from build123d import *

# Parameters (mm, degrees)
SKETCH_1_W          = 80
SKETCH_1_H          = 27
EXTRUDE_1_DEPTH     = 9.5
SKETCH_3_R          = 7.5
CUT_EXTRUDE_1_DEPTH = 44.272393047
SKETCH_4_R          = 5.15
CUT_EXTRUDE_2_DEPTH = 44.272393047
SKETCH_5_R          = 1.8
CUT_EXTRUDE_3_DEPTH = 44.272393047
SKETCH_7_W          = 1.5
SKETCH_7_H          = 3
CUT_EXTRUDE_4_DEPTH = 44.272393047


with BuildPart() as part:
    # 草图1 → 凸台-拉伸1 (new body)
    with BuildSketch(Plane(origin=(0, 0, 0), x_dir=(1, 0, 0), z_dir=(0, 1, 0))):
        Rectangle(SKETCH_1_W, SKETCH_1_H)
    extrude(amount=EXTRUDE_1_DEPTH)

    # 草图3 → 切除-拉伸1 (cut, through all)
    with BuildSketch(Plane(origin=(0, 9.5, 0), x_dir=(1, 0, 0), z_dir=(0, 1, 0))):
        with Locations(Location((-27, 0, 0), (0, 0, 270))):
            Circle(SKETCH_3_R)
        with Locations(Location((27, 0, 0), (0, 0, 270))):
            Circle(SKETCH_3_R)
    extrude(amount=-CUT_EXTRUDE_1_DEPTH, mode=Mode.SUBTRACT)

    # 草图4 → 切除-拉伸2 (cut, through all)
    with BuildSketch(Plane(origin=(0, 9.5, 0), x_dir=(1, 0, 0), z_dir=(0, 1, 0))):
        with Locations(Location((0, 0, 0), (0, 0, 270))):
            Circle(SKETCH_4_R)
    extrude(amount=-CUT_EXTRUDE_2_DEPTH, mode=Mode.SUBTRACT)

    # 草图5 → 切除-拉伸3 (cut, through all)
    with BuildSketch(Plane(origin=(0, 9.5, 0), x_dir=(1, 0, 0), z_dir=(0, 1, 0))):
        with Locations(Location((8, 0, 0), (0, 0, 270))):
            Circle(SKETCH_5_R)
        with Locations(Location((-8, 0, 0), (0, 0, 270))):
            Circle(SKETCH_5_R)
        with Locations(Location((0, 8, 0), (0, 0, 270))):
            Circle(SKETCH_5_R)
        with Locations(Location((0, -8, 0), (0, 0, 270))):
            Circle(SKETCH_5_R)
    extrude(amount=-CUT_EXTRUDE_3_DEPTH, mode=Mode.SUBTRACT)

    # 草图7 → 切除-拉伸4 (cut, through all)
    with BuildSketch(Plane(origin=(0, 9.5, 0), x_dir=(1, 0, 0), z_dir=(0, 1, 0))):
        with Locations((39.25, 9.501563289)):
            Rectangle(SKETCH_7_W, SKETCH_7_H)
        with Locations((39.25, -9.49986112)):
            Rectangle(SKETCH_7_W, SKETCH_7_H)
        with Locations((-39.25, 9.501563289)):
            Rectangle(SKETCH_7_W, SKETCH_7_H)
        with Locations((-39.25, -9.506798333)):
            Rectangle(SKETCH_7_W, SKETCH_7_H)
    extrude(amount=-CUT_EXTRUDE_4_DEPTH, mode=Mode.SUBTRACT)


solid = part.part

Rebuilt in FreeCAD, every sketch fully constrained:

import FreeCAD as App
import Part
import Sketcher
from FreeCAD import Vector

doc = App.newDocument("Part")
body = doc.addObject("PartDesign::Body", "Body")

sketch1 = body.newObject("Sketcher::SketchObject", "Sketch")
sketch1.AttachmentSupport = (doc.getObject("XZ_Plane"), [""])
sketch1.MapMode = "FlatFace"
sketch1.addGeometry([
    Part.LineSegment(Vector(-40, -14, 0), Vector(-40, 14, 0)),
    Part.LineSegment(Vector(-40, 14, 0), Vector(40, 14, 0)),
    Part.LineSegment(Vector(40, 14, 0), Vector(40, -14, 0)),
    Part.LineSegment(Vector(40, -14, 0), Vector(-40, -14, 0)),
], False)
sketch1.addConstraint([
    Sketcher.Constraint("Coincident", 0, 2, 1, 1),
    Sketcher.Constraint("Coincident", 1, 2, 2, 1),
    Sketcher.Constraint("Coincident", 2, 2, 3, 1),
    Sketcher.Constraint("Coincident", 3, 2, 0, 1),
    Sketcher.Constraint("Vertical", 0),
    Sketcher.Constraint("Horizontal", 1),
    Sketcher.Constraint("Vertical", 2),
    Sketcher.Constraint("Horizontal", 3),
    Sketcher.Constraint("Symmetric", 0, 2, 2, 2, -1, 1),
    Sketcher.Constraint("DistanceX", 1, 1, 1, 2, 80.0),
    Sketcher.Constraint("DistanceY", 0, 1, 0, 2, 27.0),
])
pad1 = body.newObject("PartDesign::Pad", "Pad")
pad1.Profile = sketch1
pad1.Length = 9.5
pad1.Reversed = True

sketch2 = body.newObject("Sketcher::SketchObject", "Sketch001")
sketch2.AttachmentSupport = (doc.getObject("XZ_Plane"), [""])
sketch2.MapMode = "FlatFace"
sketch2.AttachmentOffset = App.Placement(Vector(0, 0, -9.5), App.Rotation())
sketch2.addGeometry([
    Part.Circle(Vector(-27, 0, 0), Vector(0, 0, 1), 8),
    Part.Circle(Vector(27, 0, 0), Vector(0, 0, 1), 8),
], False)
sketch2.addConstraint([
    Sketcher.Constraint("Equal", 0, 1),
    Sketcher.Constraint("Symmetric", 0, 3, 1, 3, -1, 1),
    Sketcher.Constraint("PointOnObject", 0, 3, -1),
    Sketcher.Constraint("Diameter", 0, 15.0),
    Sketcher.Constraint("DistanceX", 0, 3, -1, 1, 27.0),
])
pocket1 = body.newObject("PartDesign::Pocket", "Pocket")
pocket1.Profile = sketch2
pocket1.Type = "ThroughAll"
pocket1.Reversed = True

sketch3 = body.newObject("Sketcher::SketchObject", "Sketch002")
sketch3.AttachmentSupport = (doc.getObject("XZ_Plane"), [""])
sketch3.MapMode = "FlatFace"
sketch3.AttachmentOffset = App.Placement(Vector(0, 0, -9.5), App.Rotation())
sketch3.addGeometry(Part.Circle(Vector(0, 0, 0), Vector(0, 0, 1), 5), False)
sketch3.addConstraint([
    Sketcher.Constraint("Coincident", 0, 3, -1, 1),
    Sketcher.Constraint("Diameter", 0, 10.3),
])
pocket2 = body.newObject("PartDesign::Pocket", "Pocket001")
pocket2.Profile = sketch3
pocket2.Type = "ThroughAll"
pocket2.Reversed = True

sketch4 = body.newObject("Sketcher::SketchObject", "Sketch003")
sketch4.AttachmentSupport = (doc.getObject("XZ_Plane"), [""])
sketch4.MapMode = "FlatFace"
sketch4.AttachmentOffset = App.Placement(Vector(0, 0, -9.5), App.Rotation())
sketch4.addGeometry([
    Part.Circle(Vector(8, 0, 0), Vector(0, 0, 1), 1.8),
    Part.Circle(Vector(-8, 0, 0), Vector(0, 0, 1), 1.8),
    Part.Circle(Vector(0, -8, 0), Vector(0, 0, 1), 1.8),
    Part.Circle(Vector(0, 8, 0), Vector(0, 0, 1), 1.8),
], False)
sketch4.addConstraint([
    Sketcher.Constraint("Equal", 0, 1),
    Sketcher.Constraint("Equal", 1, 2),
    Sketcher.Constraint("Equal", 2, 3),
    Sketcher.Constraint("Symmetric", 0, 3, 1, 3, -1, 1),
    Sketcher.Constraint("Symmetric", 2, 3, 3, 3, -1, 1),
    Sketcher.Constraint("PointOnObject", 0, 3, -1),
    Sketcher.Constraint("PointOnObject", 2, 3, -2),
    Sketcher.Constraint("Diameter", 0, 3.6),
    Sketcher.Constraint("DistanceX", -1, 1, 0, 3, 8.0),
    Sketcher.Constraint("DistanceY", 2, 3, -1, 1, 8.0),
])
pocket3 = body.newObject("PartDesign::Pocket", "Pocket002")
pocket3.Profile = sketch4
pocket3.Type = "ThroughAll"
pocket3.Reversed = True

sketch5 = body.newObject("Sketcher::SketchObject", "Sketch004")
sketch5.AttachmentSupport = (doc.getObject("XZ_Plane"), [""])
sketch5.MapMode = "FlatFace"
sketch5.AttachmentOffset = App.Placement(Vector(0, 0, -9.5), App.Rotation())
sketch5.addGeometry([
    Part.LineSegment(Vector(38.5, -11, 0), Vector(38.5, -8, 0)),
    Part.LineSegment(Vector(38.5, -8, 0), Vector(40, -8, 0)),
    Part.LineSegment(Vector(40, -8, 0), Vector(40, -11, 0)),
    Part.LineSegment(Vector(40, -11, 0), Vector(38.5, -11, 0)),
    Part.LineSegment(Vector(38.5, 8, 0), Vector(38.5, 11, 0)),
    Part.LineSegment(Vector(38.5, 11, 0), Vector(40, 11, 0)),
    Part.LineSegment(Vector(40, 11, 0), Vector(40, 8, 0)),
    Part.LineSegment(Vector(40, 8, 0), Vector(38.5, 8, 0)),
    Part.LineSegment(Vector(-40, -11, 0), Vector(-40, -8, 0)),
    Part.LineSegment(Vector(-40, -8, 0), Vector(-38.5, -8, 0)),
    Part.LineSegment(Vector(-38.5, -8, 0), Vector(-38.5, -11, 0)),
    Part.LineSegment(Vector(-38.5, -11, 0), Vector(-40, -11, 0)),
    Part.LineSegment(Vector(-40, 8, 0), Vector(-40, 11, 0)),
    Part.LineSegment(Vector(-40, 11, 0), Vector(-38.5, 11, 0)),
    Part.LineSegment(Vector(-38.5, 11, 0), Vector(-38.5, 8, 0)),
    Part.LineSegment(Vector(-38.5, 8, 0), Vector(-40, 8, 0)),
], False)
sketch5.addConstraint([
    Sketcher.Constraint("Coincident", 0, 2, 1, 1),
    Sketcher.Constraint("Coincident", 1, 2, 2, 1),
    Sketcher.Constraint("Coincident", 2, 2, 3, 1),
    Sketcher.Constraint("Coincident", 3, 2, 0, 1),
    Sketcher.Constraint("Coincident", 4, 2, 5, 1),
    Sketcher.Constraint("Coincident", 5, 2, 6, 1),
    Sketcher.Constraint("Coincident", 6, 2, 7, 1),
    Sketcher.Constraint("Coincident", 7, 2, 4, 1),
    Sketcher.Constraint("Coincident", 8, 2, 9, 1),
    Sketcher.Constraint("Coincident", 9, 2, 10, 1),
    Sketcher.Constraint("Coincident", 10, 2, 11, 1),
    Sketcher.Constraint("Coincident", 11, 2, 8, 1),
    Sketcher.Constraint("Coincident", 12, 2, 13, 1),
    Sketcher.Constraint("Coincident", 13, 2, 14, 1),
    Sketcher.Constraint("Coincident", 14, 2, 15, 1),
    Sketcher.Constraint("Coincident", 15, 2, 12, 1),
    Sketcher.Constraint("Vertical", 0),
    Sketcher.Constraint("Horizontal", 1),
    Sketcher.Constraint("Vertical", 2),
    Sketcher.Constraint("Horizontal", 3),
    Sketcher.Constraint("Vertical", 4),
    Sketcher.Constraint("Horizontal", 5),
    Sketcher.Constraint("Vertical", 6),
    Sketcher.Constraint("Horizontal", 7),
    Sketcher.Constraint("Vertical", 8),
    Sketcher.Constraint("Horizontal", 9),
    Sketcher.Constraint("Vertical", 10),
    Sketcher.Constraint("Horizontal", 11),
    Sketcher.Constraint("Vertical", 12),
    Sketcher.Constraint("Horizontal", 13),
    Sketcher.Constraint("Vertical", 14),
    Sketcher.Constraint("Horizontal", 15),
    Sketcher.Constraint("Symmetric", 1, 2, 8, 2, -2),
    Sketcher.Constraint("Symmetric", 3, 2, 10, 2, -2),
    Sketcher.Constraint("Vertical", 3, 2, 4, 2),
    Sketcher.Constraint("Vertical", 2, 2, 5, 2),
    Sketcher.Constraint("Vertical", 11, 2, 12, 2),
    Sketcher.Constraint("Vertical", 10, 2, 13, 2),
    Sketcher.Constraint("Equal", 2, 4),
    Sketcher.Constraint("Equal", 10, 12),
    Sketcher.Constraint("DistanceY", 0, 1, 0, 2, 3.0),
    Sketcher.Constraint("DistanceX", 1, 1, 1, 2, 1.5),
    Sketcher.Constraint("DistanceX", -1, 1, 1, 2, 40.0),
    Sketcher.Constraint("DistanceY", -1, 1, 12, 2, 11.006798),
    Sketcher.Constraint("DistanceY", -1, 1, 4, 2, 10.999861),
    Sketcher.Constraint("DistanceY", 8, 2, 12, 2, 19.008362),
])
pocket4 = body.newObject("PartDesign::Pocket", "Pocket003")
pocket4.Profile = sketch5
pocket4.Type = "ThroughAll"
pocket4.Reversed = True

doc.recompute()
